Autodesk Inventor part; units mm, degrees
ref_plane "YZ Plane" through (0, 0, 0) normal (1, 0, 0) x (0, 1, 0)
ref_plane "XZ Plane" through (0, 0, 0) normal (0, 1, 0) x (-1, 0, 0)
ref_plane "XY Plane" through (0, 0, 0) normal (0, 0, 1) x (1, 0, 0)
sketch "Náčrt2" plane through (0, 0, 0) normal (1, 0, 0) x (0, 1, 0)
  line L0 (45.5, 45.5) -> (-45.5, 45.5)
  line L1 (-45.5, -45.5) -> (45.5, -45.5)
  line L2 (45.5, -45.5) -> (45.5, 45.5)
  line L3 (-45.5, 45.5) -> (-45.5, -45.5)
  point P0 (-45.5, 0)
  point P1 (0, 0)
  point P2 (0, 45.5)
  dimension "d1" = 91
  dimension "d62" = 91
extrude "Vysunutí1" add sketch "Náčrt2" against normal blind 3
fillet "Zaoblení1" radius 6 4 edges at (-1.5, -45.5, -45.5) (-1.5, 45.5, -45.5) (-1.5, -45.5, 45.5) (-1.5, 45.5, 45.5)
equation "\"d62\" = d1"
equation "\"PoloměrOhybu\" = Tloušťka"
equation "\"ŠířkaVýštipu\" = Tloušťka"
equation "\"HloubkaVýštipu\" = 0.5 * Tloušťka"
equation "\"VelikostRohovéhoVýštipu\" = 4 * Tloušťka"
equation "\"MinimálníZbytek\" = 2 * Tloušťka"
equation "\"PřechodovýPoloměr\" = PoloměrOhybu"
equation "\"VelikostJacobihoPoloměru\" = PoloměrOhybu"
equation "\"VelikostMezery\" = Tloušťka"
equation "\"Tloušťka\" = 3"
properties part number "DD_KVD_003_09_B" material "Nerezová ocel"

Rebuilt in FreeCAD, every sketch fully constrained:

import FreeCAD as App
import Part
import Sketcher
from FreeCAD import Vector


def edges_at(feature, points):
    """Names of the edges that pass closest to the given points."""
    edges = feature.Shape.Edges
    near = lambda p: min(range(len(edges)), key=lambda i: edges[i].distToShape(Part.Vertex(*p))[0])
    return sorted({f"Edge{near(p) + 1}" for p in points})


def add_polygon(sketch, points):
    """Adds a closed chain of lines whose ends are joined by coincident constraints."""
    first, n = sketch.GeometryCount, len(points)
    for a, b in zip(points, points[1:] + points[:1]):
        sketch.addGeometry(Part.LineSegment(App.Vector(*a, 0), App.Vector(*b, 0)), False)
    for i in range(n):
        sketch.addConstraint(Sketcher.Constraint("Coincident", first + i, 2, first + (i + 1) % n, 1))

doc = App.newDocument("Part")
body = doc.addObject("PartDesign::Body", "Body")

# Sketch on YZ plane
sketch1 = body.newObject("Sketcher::SketchObject", "Sketch")
sketch1.AttachmentSupport = (doc.getObject("YZ_Plane"), [""])
sketch1.MapMode = "FlatFace"
add_polygon(sketch1, [(46, -46), (46, 46), (-46, 46), (-46, -46)])  # lines 0-3
sketch1.addConstraint([
    Sketcher.Constraint("Vertical", 0),
    Sketcher.Constraint("Horizontal", 1),
    Sketcher.Constraint("Vertical", 2),
    Sketcher.Constraint("Horizontal", 3),
    Sketcher.Constraint("Symmetric", 0, 2, 2, 2, -1, 1),
    Sketcher.Constraint("Equal", 3, 0),
    Sketcher.Constraint("DistanceX", 1, 2, 1, 1, 91.0),
])
pad1 = body.newObject("PartDesign::Pad", "Pad")
pad1.Profile = sketch1
pad1.Length = 3
pad1.Reversed = True
doc.recompute()

fillet = body.newObject("PartDesign::Fillet", "Fillet")
fillet.Base = (pad1, edges_at(pad1, [
    (-1.5, -45.5, -45.5),
    (-1.5, 45.5, -45.5),
    (-1.5, -45.5, 45.5),
    (-1.5, 45.5, 45.5),
]))
fillet.Radius = 6

doc.recompute()
